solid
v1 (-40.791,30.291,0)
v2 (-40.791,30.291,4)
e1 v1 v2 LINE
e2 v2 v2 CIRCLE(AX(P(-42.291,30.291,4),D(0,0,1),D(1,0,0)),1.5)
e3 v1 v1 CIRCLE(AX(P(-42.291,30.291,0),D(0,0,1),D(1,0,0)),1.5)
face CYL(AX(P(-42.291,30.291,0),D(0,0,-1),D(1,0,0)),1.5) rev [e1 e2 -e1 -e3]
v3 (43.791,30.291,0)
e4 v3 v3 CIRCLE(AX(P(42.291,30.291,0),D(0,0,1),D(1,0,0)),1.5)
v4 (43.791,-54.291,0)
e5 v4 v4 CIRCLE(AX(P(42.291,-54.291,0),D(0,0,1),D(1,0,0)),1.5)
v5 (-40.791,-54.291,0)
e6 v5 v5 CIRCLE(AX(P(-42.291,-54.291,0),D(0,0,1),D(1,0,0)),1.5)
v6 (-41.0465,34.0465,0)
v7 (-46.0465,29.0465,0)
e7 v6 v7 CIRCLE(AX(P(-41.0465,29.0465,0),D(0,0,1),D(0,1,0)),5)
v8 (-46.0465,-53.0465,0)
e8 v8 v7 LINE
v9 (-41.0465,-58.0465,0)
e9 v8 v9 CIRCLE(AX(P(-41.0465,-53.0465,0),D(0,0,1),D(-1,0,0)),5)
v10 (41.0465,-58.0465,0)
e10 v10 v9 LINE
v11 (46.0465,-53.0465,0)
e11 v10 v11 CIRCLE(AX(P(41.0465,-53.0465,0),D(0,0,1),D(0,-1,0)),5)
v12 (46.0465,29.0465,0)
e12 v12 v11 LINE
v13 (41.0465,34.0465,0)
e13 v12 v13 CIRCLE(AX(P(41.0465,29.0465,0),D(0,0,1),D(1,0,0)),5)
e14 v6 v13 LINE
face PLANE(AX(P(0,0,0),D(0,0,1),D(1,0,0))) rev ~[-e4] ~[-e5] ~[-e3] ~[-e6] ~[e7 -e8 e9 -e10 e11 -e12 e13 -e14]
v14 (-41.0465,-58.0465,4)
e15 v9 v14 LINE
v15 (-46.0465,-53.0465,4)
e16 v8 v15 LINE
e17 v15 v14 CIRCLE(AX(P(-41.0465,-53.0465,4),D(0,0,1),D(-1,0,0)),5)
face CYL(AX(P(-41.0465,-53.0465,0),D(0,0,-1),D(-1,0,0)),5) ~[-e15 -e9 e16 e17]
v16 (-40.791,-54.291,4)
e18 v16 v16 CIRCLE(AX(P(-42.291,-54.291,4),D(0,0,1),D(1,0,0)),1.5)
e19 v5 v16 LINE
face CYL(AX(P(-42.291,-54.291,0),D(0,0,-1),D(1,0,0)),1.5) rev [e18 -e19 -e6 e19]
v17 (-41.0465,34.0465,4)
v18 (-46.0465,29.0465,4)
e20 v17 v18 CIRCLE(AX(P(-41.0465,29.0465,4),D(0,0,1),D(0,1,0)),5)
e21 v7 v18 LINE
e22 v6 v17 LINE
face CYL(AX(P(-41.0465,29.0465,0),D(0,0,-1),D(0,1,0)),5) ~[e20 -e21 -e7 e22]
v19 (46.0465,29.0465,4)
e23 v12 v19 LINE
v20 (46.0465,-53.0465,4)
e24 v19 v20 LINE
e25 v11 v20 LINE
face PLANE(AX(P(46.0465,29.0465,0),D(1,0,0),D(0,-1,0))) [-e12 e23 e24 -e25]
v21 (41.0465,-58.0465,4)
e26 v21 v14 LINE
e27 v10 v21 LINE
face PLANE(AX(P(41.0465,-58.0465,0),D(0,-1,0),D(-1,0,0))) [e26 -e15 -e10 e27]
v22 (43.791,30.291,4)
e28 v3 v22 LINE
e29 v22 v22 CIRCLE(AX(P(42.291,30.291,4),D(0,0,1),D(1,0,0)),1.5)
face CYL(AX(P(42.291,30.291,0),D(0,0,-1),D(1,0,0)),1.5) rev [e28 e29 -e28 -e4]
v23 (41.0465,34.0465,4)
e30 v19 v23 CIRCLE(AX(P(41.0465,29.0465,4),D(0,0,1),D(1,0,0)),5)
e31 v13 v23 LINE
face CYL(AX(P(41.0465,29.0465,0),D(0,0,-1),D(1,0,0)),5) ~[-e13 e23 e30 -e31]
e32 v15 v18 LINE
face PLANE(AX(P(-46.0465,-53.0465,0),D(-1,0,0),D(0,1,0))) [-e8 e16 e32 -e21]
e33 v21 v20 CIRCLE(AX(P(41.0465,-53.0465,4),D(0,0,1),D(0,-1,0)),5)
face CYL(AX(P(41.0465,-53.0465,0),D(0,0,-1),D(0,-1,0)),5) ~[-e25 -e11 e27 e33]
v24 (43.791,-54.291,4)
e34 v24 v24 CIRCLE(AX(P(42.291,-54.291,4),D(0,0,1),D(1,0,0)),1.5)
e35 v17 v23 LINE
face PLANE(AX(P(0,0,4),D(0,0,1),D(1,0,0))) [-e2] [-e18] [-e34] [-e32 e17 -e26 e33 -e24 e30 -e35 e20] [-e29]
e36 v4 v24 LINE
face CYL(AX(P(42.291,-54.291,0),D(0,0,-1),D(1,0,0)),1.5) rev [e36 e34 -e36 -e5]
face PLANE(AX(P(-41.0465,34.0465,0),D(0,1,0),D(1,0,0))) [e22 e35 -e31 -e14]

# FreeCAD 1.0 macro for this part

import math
import FreeCAD as App
import Part
import Sketcher

V = App.Vector
Q = App.Units.Quantity

doc = App.newDocument("Part")
body = doc.addObject("PartDesign::Body", "Body")

# Sketch on XY plane
sketch1 = body.newObject("Sketcher::SketchObject", "Sketch")
sketch1.AttachmentSupport = (doc.getObject("XY_Plane"), [""])
sketch1.MapMode = "FlatFace"
sketch1.addGeometry([
    Part.LineSegment(V(41, 34, 0), V(-41, 34, 0)),  # 0
    Part.ArcOfCircle(Part.Circle(V(-41, 29, 0), V(0, 0, 1), 5), math.radians(90), math.radians(180)),  # 1
    Part.LineSegment(V(-46, 29, 0), V(-46, -53, 0)),  # 2
    Part.ArcOfCircle(Part.Circle(V(-41, -53, 0), V(0, 0, 1), 5), math.radians(180), math.radians(270)),  # 3
    Part.LineSegment(V(-41, -58, 0), V(41, -58, 0)),  # 4
    Part.ArcOfCircle(Part.Circle(V(41, -53, 0), V(0, 0, 1), 5), math.radians(-90), math.radians(0)),  # 5
    Part.LineSegment(V(46, -53, 0), V(46, 29, 0)),  # 6
    Part.ArcOfCircle(Part.Circle(V(41, 29, 0), V(0, 0, 1), 5), math.radians(0), math.radians(90)),  # 7
    Part.Circle(V(-42.3, -54.3, 0), V(0, 0, 1), 1.5),  # 8
    Part.Circle(V(-42.3, 30.3, 0), V(0, 0, 1), 1.5),  # 9
    Part.Circle(V(42.3, -54.3, 0), V(0, 0, 1), 1.5),  # 10
    Part.Circle(V(42.3, 30.3, 0), V(0, 0, 1), 1.5),  # 11
], False)
sketch1.addConstraint([
    Sketcher.Constraint("Tangent", 0, 2, 1, 1),
    Sketcher.Constraint("Tangent", 1, 2, 2, 1),
    Sketcher.Constraint("Tangent", 2, 2, 3, 1),
    Sketcher.Constraint("Tangent", 3, 2, 4, 1),
    Sketcher.Constraint("Tangent", 4, 2, 5, 1),
    Sketcher.Constraint("Tangent", 5, 2, 6, 1),
    Sketcher.Constraint("Tangent", 6, 2, 7, 1),
    Sketcher.Constraint("Tangent", 7, 2, 0, 1),
    Sketcher.Constraint("Horizontal", 0),
    Sketcher.Constraint("Vertical", 2),
    Sketcher.Constraint("Horizontal", 4),
    Sketcher.Constraint("Vertical", 6),
    Sketcher.Constraint("Equal", 1, 3),
    Sketcher.Constraint("Equal", 3, 5),
    Sketcher.Constraint("Equal", 5, 7),
    Sketcher.Constraint("Equal", 8, 9),
    Sketcher.Constraint("Equal", 9, 10),
    Sketcher.Constraint("Equal", 10, 11),
    Sketcher.Constraint("Symmetric", 8, 3, 10, 3, -2),
    Sketcher.Constraint("Symmetric", 9, 3, 11, 3, -2),
    Sketcher.Constraint("Vertical", 8, 3, 9, 3),
    Sketcher.Constraint("Equal", 4, 2),
    Sketcher.Constraint("Diameter", 8, Q("3 mm")),
    Sketcher.Constraint("Radius", 1, Q("5 mm")),
    Sketcher.Constraint("DistanceX", 0, 2, 0, 1, Q("82.093 mm")),
    Sketcher.Constraint("DistanceX", 8, 3, -1, 1, Q("42.291 mm")),
    Sketcher.Constraint("DistanceY", 8, 3, -1, 1, Q("54.291 mm")),
    Sketcher.Constraint("DistanceY", -1, 1, 9, 3, Q("30.291 mm")),
    Sketcher.Constraint("DistanceX", 1, 3, -1, 1, Q("41.0465 mm")),
    Sketcher.Constraint("DistanceY", -1, 1, 1, 3, Q("29.0465 mm")),
])
pad1 = body.newObject("PartDesign::Pad", "Pad")
pad1.Profile = sketch1
pad1.Length = 4

doc.recompute()
